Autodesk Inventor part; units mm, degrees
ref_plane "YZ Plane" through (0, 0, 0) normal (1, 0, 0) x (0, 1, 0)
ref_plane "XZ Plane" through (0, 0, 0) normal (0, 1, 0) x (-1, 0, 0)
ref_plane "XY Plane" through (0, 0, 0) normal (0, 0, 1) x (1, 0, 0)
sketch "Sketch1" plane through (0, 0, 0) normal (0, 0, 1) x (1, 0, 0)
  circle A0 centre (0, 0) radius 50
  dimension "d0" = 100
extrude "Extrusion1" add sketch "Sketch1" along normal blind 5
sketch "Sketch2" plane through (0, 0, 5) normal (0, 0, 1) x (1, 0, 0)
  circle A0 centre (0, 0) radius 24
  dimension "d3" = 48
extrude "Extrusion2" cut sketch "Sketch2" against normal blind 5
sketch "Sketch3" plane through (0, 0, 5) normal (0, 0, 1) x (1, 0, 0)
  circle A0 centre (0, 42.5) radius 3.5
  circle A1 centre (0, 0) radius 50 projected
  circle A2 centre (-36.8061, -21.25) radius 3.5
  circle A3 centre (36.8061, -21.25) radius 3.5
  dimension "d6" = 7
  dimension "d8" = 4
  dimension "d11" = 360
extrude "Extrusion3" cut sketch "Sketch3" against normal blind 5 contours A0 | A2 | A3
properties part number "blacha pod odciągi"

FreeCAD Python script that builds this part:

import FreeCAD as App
import Part
import Sketcher

doc = App.newDocument("Part")
params = doc.addObject("Spreadsheet::Sheet", "Params")
for row, (alias, value) in enumerate([
    ("sketch1_diameter", "100 mm"),
    ("pad1_length", "5 mm"),
    ("sketch2_diameter", "48 mm"),
    ("pocket1_length", "5 mm"),
    ("sketch3_diameter", "7 mm"),
    ("pocket2_length", "5 mm"),
], start=1):
    params.set(f"A{row}", alias)
    params.set(f"B{row}", "=" + value)
    params.setAlias(f"B{row}", alias)

body = doc.addObject("PartDesign::Body", "Body")

# Sketch on XY plane
sketch1 = body.newObject("Sketcher::SketchObject", "Sketch")
sketch1.AttachmentSupport = (doc.getObject("XY_Plane"), [""])
sketch1.MapMode = "FlatFace"
sketch1.addGeometry(Part.Circle(App.Vector(0, 0, 0), App.Vector(0, 0, 1), 50), False)
sketch1.addConstraint([
    Sketcher.Constraint("Coincident", 0, 3, -1, 1),
    Sketcher.Constraint("Diameter", 0, 100.0),
])
sketch1.setExpression("Constraints[1]", "Params.sketch1_diameter")
pad1 = body.newObject("PartDesign::Pad", "Pad")
pad1.Profile = sketch1
pad1.setExpression("Length", "Params.pad1_length")

# Sketch on XY plane
sketch2 = body.newObject("Sketcher::SketchObject", "Sketch001")
sketch2.AttachmentSupport = (doc.getObject("XY_Plane"), [""])
sketch2.MapMode = "FlatFace"
sketch2.AttachmentOffset = App.Placement(App.Vector(0, 0, 5), App.Rotation())
sketch2.addGeometry(Part.Circle(App.Vector(0, 0, 0), App.Vector(0, 0, 1), 24), False)
sketch2.addConstraint([
    Sketcher.Constraint("Coincident", 0, 3, -1, 1),
    Sketcher.Constraint("Diameter", 0, 48.0),
])
sketch2.setExpression("Constraints[1]", "Params.sketch2_diameter")
pocket1 = body.newObject("PartDesign::Pocket", "Pocket")
pocket1.Profile = sketch2
pocket1.setExpression("Length", "Params.pocket1_length")

# Sketch on XY plane
sketch3 = body.newObject("Sketcher::SketchObject", "Sketch002")
sketch3.AttachmentSupport = (doc.getObject("XY_Plane"), [""])
sketch3.MapMode = "FlatFace"
sketch3.AttachmentOffset = App.Placement(App.Vector(0, 0, 5), App.Rotation())
sketch3.addGeometry([
    Part.Circle(App.Vector(0, 42.5, 0), App.Vector(0, 0, 1), 3.5),
    Part.Circle(App.Vector(-36.8061, -21.25, 0), App.Vector(0, 0, 1), 3.5),
    Part.Circle(App.Vector(36.8061, -21.25, 0), App.Vector(0, 0, 1), 3.5),
], False)
sketch3.addConstraint([
    Sketcher.Constraint("Equal", 0, 1),
    Sketcher.Constraint("Equal", 1, 2),
    Sketcher.Constraint("Symmetric", 1, 3, 2, 3, -2),
    Sketcher.Constraint("PointOnObject", 0, 3, -2),
    Sketcher.Constraint("Diameter", 0, 7.0),
    Sketcher.Constraint("DistanceY", -1, 1, 0, 3, 42.5),
    Sketcher.Constraint("DistanceY", 1, 3, -1, 1, 21.25),
    Sketcher.Constraint("DistanceX", 1, 3, -1, 1, 36.806),
])
sketch3.setExpression("Constraints[4]", "Params.sketch3_diameter")
pocket2 = body.newObject("PartDesign::Pocket", "Pocket001")
pocket2.Profile = sketch3
pocket2.setExpression("Length", "Params.pocket2_length")

doc.recompute()
